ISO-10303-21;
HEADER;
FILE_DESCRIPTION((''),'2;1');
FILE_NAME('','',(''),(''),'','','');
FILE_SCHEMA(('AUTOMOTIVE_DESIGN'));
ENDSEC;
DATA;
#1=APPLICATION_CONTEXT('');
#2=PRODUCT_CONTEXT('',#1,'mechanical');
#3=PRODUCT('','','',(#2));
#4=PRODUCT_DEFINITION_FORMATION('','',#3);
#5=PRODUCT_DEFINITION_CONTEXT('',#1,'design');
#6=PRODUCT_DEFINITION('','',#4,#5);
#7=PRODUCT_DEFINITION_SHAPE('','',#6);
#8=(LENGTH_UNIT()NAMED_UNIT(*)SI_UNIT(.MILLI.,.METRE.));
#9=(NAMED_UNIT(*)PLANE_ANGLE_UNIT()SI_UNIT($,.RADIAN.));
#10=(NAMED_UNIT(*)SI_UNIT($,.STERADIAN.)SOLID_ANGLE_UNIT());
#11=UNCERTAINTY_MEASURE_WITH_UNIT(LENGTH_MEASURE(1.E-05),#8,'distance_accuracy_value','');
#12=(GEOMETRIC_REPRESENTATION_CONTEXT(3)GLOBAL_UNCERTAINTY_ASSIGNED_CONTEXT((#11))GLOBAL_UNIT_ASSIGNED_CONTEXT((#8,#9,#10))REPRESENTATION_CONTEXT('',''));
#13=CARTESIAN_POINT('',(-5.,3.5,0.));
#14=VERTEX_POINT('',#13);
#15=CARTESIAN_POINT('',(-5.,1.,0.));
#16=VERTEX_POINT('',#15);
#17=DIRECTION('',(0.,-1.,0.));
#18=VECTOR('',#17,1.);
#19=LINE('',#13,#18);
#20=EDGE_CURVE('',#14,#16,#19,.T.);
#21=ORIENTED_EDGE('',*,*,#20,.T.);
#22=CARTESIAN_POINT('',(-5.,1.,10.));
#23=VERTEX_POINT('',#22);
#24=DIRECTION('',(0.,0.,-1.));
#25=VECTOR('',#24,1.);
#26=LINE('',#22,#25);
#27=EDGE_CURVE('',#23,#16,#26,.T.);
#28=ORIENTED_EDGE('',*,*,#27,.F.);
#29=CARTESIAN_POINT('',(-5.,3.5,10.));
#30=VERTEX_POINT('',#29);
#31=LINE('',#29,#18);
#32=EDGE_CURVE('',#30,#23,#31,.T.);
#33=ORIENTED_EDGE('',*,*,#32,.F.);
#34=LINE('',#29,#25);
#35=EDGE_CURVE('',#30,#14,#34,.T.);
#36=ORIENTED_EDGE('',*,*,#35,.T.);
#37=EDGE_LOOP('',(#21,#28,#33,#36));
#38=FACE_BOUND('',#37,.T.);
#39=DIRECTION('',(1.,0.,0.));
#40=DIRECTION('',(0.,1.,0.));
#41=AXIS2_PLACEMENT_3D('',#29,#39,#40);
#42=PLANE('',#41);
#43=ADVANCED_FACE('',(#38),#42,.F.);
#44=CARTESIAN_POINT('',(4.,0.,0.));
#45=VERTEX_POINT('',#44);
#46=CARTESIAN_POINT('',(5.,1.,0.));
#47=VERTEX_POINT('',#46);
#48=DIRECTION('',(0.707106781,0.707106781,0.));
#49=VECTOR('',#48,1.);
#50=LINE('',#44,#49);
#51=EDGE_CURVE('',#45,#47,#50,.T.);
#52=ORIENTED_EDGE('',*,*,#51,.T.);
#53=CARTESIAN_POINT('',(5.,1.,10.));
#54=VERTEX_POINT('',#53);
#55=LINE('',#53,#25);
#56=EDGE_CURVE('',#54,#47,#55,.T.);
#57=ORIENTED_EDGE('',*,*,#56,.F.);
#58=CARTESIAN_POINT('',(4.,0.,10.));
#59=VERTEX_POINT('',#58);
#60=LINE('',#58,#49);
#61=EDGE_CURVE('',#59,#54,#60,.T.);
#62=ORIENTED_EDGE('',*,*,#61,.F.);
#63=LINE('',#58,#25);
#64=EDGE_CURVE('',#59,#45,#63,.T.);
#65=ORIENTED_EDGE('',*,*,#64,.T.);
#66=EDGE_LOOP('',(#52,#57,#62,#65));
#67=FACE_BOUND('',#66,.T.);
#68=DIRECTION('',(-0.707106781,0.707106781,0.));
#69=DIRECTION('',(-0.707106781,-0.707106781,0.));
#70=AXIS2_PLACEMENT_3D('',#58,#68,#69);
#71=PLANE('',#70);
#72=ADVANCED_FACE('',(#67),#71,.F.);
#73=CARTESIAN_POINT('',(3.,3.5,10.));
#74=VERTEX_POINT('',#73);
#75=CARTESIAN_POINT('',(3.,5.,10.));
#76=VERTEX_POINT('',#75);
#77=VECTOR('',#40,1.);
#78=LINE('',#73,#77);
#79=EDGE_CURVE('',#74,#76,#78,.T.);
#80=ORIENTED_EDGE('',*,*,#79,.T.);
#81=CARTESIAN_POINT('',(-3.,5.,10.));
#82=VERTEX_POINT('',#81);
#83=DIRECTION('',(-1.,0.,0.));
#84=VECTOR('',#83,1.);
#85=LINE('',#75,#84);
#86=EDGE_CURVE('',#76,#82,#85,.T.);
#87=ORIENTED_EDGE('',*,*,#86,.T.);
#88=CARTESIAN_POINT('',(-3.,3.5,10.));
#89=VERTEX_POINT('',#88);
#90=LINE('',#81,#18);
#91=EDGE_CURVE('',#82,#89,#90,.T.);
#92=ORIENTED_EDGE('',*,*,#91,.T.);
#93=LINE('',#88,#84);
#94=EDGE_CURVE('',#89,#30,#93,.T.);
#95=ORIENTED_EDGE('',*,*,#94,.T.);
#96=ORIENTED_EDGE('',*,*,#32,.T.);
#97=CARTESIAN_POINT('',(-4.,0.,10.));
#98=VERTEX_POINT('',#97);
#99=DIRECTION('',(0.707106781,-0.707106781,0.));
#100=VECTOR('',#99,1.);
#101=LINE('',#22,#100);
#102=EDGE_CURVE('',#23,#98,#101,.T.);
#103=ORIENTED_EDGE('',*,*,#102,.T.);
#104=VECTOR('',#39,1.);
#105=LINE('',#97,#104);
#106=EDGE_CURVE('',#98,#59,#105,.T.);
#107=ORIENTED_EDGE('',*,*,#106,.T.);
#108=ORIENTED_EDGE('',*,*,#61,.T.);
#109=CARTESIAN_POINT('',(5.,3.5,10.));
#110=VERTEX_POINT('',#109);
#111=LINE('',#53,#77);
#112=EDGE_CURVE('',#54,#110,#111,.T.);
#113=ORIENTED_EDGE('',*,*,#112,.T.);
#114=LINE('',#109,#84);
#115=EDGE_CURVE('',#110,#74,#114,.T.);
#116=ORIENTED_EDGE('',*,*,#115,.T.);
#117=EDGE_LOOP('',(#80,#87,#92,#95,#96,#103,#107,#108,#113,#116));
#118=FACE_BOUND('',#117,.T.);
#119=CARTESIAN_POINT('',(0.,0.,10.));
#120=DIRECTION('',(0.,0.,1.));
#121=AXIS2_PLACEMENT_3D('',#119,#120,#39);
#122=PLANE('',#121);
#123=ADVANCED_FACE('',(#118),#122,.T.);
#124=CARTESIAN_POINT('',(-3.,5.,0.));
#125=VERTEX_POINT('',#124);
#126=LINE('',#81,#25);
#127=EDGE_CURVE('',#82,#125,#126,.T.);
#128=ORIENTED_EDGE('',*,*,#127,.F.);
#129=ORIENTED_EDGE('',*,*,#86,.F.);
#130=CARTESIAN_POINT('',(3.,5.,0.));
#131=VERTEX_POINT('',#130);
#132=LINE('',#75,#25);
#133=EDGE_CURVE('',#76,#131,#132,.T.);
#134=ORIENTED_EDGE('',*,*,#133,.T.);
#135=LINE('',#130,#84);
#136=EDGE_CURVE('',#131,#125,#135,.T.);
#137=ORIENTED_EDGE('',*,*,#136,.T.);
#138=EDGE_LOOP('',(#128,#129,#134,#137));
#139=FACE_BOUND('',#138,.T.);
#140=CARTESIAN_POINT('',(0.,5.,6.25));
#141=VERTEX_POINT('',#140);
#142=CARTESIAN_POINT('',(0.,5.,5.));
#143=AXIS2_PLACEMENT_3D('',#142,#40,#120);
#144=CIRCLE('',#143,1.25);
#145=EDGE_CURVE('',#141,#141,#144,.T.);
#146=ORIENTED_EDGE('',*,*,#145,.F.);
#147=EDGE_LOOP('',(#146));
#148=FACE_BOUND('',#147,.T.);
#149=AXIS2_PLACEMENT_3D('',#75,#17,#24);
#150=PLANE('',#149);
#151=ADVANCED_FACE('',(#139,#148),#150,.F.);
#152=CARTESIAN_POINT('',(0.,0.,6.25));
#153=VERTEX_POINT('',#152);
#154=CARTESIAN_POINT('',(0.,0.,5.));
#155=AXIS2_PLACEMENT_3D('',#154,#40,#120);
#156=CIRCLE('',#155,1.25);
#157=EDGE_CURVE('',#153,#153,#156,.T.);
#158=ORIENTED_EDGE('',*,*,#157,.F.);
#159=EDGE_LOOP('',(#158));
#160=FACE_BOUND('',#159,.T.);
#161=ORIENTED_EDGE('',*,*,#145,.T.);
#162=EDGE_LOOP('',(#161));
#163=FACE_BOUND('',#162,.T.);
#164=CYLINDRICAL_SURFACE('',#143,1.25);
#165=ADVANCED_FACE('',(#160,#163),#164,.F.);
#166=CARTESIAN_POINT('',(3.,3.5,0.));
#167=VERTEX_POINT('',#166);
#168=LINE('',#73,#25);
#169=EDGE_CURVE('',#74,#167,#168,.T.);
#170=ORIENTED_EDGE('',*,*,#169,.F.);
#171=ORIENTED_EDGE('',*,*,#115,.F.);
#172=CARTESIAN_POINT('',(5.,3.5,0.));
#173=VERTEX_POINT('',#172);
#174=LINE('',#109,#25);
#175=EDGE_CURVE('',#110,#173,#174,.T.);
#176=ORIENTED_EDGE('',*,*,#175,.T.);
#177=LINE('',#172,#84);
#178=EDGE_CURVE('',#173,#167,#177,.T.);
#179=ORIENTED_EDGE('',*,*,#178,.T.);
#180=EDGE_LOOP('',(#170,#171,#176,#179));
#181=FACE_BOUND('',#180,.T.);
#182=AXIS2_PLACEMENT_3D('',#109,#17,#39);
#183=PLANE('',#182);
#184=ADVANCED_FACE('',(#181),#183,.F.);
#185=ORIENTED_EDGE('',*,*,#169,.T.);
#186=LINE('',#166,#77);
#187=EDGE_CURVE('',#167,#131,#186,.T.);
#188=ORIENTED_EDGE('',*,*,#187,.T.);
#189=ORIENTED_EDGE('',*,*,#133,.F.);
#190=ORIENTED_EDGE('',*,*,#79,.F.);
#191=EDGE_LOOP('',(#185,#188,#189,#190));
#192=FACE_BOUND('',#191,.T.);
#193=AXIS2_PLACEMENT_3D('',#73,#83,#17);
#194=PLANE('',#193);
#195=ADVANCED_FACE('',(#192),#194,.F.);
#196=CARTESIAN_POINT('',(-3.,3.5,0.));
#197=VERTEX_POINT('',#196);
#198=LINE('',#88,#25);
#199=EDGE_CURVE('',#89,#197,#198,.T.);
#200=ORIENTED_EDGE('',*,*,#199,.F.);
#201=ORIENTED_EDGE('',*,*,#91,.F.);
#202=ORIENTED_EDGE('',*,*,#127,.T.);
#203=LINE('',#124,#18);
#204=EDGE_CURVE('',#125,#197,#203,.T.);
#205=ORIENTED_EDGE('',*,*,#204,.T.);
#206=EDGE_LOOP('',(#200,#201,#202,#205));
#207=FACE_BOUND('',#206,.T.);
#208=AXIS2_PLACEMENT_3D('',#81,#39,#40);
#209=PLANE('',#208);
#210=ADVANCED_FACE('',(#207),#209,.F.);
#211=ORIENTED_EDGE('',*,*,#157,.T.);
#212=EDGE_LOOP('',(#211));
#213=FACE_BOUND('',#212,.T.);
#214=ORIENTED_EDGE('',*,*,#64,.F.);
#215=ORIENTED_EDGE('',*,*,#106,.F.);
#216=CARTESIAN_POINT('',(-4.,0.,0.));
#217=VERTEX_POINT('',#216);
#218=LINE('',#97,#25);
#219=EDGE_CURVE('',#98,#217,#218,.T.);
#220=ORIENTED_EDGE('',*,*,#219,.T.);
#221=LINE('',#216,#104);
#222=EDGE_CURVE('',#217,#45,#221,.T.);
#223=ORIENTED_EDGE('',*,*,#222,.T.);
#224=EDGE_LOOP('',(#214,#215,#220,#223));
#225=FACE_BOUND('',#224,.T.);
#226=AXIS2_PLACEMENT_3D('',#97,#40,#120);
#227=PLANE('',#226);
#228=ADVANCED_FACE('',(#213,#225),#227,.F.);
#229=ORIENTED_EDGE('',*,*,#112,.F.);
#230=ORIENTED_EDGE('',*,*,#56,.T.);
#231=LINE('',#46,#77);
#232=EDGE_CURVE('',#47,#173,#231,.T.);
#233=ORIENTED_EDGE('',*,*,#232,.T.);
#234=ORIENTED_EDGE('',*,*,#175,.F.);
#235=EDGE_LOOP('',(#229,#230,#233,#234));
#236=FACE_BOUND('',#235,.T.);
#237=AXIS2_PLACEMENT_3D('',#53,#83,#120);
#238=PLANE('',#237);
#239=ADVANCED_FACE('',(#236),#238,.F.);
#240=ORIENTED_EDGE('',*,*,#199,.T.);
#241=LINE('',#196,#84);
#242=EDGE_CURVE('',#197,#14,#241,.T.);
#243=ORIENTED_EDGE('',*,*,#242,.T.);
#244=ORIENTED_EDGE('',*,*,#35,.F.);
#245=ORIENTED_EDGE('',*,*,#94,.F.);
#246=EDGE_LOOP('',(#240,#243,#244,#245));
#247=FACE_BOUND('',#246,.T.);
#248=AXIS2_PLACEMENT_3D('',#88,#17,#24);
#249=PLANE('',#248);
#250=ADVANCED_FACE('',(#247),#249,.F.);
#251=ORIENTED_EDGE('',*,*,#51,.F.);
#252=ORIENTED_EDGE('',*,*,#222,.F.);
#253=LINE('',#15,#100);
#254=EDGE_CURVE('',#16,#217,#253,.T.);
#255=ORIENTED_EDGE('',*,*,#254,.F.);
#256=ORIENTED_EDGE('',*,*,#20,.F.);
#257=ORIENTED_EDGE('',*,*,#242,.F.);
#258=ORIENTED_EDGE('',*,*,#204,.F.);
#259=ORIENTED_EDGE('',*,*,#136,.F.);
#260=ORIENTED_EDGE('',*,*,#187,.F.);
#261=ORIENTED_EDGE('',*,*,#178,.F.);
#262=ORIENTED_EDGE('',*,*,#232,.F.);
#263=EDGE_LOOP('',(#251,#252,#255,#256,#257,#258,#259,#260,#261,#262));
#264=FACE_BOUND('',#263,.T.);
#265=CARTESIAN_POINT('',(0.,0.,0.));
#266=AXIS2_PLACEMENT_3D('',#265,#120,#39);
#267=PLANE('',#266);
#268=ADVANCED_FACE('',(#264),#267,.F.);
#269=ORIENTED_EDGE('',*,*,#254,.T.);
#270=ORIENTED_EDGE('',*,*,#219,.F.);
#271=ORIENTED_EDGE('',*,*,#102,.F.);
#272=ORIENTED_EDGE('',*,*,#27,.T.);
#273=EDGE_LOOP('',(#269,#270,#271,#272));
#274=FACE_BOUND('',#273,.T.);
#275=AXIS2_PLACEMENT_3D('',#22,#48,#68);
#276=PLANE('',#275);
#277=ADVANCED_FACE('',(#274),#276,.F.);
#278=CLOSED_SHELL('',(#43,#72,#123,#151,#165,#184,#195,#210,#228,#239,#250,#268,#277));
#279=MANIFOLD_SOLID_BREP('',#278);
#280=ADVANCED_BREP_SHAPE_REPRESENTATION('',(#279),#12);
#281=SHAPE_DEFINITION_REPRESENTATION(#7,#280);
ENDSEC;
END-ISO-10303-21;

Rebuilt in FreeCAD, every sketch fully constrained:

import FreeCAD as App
import Part
import Sketcher

V = App.Vector

doc = App.newDocument("Part")
body = doc.addObject("PartDesign::Body", "Body")

sketch1 = doc.addObject("Sketcher::SketchObject", "Sketch")
body.addObject(sketch1)
sketch1.AttachmentSupport = (doc.XY_Plane, [""])
sketch1.MapMode = "FlatFace"
sketch1.addGeometry(Part.LineSegment(V(-4, 0, 0), V(4, 0, 0)), False)
sketch1.addGeometry(Part.LineSegment(V(4, 0, 0), V(5, 1, 0)), False)
sketch1.addGeometry(Part.LineSegment(V(5, 1, 0), V(5, 3.5, 0)), False)
sketch1.addGeometry(Part.LineSegment(V(5, 3.5, 0), V(3, 3.5, 0)), False)
sketch1.addGeometry(Part.LineSegment(V(3, 3.5, 0), V(3, 5, 0)), False)
sketch1.addGeometry(Part.LineSegment(V(3, 5, 0), V(-3, 5, 0)), False)
sketch1.addGeometry(Part.LineSegment(V(-3, 5, 0), V(-3, 3.5, 0)), False)
sketch1.addGeometry(Part.LineSegment(V(-3, 3.5, 0), V(-5, 3.5, 0)), False)
sketch1.addGeometry(Part.LineSegment(V(-5, 3.5, 0), V(-5, 1, 0)), False)
sketch1.addGeometry(Part.LineSegment(V(-5, 1, 0), V(-4, 0, 0)), False)
sketch1.addConstraint(Sketcher.Constraint("Coincident", 0, 2, 1, 1))
sketch1.addConstraint(Sketcher.Constraint("Coincident", 1, 2, 2, 1))
sketch1.addConstraint(Sketcher.Constraint("Coincident", 2, 2, 3, 1))
sketch1.addConstraint(Sketcher.Constraint("Coincident", 3, 2, 4, 1))
sketch1.addConstraint(Sketcher.Constraint("Coincident", 4, 2, 5, 1))
sketch1.addConstraint(Sketcher.Constraint("Coincident", 5, 2, 6, 1))
sketch1.addConstraint(Sketcher.Constraint("Coincident", 6, 2, 7, 1))
sketch1.addConstraint(Sketcher.Constraint("Coincident", 7, 2, 8, 1))
sketch1.addConstraint(Sketcher.Constraint("Coincident", 8, 2, 9, 1))
sketch1.addConstraint(Sketcher.Constraint("Coincident", 9, 2, 0, 1))
sketch1.addConstraint(Sketcher.Constraint("Horizontal", 0))
sketch1.addConstraint(Sketcher.Constraint("Vertical", 2))
sketch1.addConstraint(Sketcher.Constraint("Horizontal", 3))
sketch1.addConstraint(Sketcher.Constraint("Vertical", 4))
sketch1.addConstraint(Sketcher.Constraint("Horizontal", 5))
sketch1.addConstraint(Sketcher.Constraint("Vertical", 6))
sketch1.addConstraint(Sketcher.Constraint("Horizontal", 7))
sketch1.addConstraint(Sketcher.Constraint("Vertical", 8))
sketch1.addConstraint(Sketcher.Constraint("Symmetric", 0, 2, 9, 2, -1, 1))
sketch1.addConstraint(Sketcher.Constraint("Symmetric", 3, 2, 6, 2, -2))
sketch1.addConstraint(Sketcher.Constraint("Symmetric", 1, 2, 8, 2, -2))
sketch1.addConstraint(Sketcher.Constraint("Perpendicular", 1, 9))
sketch1.addConstraint(Sketcher.Constraint("DistanceX", 0, 1, 0, 2, 8.0))
sketch1.addConstraint(Sketcher.Constraint("DistanceX", 3, 2, 3, 1, 2.0))
sketch1.addConstraint(Sketcher.Constraint("DistanceX", 5, 2, 5, 1, 6.0))
sketch1.addConstraint(Sketcher.Constraint("DistanceY", 2, 1, 2, 2, 2.5))
sketch1.addConstraint(Sketcher.Constraint("DistanceY", 4, 1, 4, 2, 1.5))
pad1 = doc.addObject("PartDesign::Pad", "Pad")
body.addObject(pad1)
pad1.Profile = sketch1
pad1.Length = 10

sketch2 = doc.addObject("Sketcher::SketchObject", "Sketch001")
body.addObject(sketch2)
sketch2.AttachmentSupport = (doc.XZ_Plane, [""])
sketch2.MapMode = "FlatFace"
sketch2.AttachmentOffset = App.Placement(V(0, 0, -5), App.Rotation())
sketch2.addGeometry(Part.Circle(V(0, 5, 0), V(0, 0, 1), 1.2), False)
sketch2.addConstraint(Sketcher.Constraint("PointOnObject", 0, 3, -2))
sketch2.addConstraint(Sketcher.Constraint("Diameter", 0, 2.5))
sketch2.addConstraint(Sketcher.Constraint("DistanceY", -1, 1, 0, 3, 5.0))
doc.recompute()
hole = doc.addObject("PartDesign::Hole", "Hole")
body.addObject(hole)
hole.Profile = sketch2
hole.ThreadType = "None"
hole.Diameter = 2.5
hole.DepthType = "ThroughAll"
hole.Reversed = True

doc.recompute()
